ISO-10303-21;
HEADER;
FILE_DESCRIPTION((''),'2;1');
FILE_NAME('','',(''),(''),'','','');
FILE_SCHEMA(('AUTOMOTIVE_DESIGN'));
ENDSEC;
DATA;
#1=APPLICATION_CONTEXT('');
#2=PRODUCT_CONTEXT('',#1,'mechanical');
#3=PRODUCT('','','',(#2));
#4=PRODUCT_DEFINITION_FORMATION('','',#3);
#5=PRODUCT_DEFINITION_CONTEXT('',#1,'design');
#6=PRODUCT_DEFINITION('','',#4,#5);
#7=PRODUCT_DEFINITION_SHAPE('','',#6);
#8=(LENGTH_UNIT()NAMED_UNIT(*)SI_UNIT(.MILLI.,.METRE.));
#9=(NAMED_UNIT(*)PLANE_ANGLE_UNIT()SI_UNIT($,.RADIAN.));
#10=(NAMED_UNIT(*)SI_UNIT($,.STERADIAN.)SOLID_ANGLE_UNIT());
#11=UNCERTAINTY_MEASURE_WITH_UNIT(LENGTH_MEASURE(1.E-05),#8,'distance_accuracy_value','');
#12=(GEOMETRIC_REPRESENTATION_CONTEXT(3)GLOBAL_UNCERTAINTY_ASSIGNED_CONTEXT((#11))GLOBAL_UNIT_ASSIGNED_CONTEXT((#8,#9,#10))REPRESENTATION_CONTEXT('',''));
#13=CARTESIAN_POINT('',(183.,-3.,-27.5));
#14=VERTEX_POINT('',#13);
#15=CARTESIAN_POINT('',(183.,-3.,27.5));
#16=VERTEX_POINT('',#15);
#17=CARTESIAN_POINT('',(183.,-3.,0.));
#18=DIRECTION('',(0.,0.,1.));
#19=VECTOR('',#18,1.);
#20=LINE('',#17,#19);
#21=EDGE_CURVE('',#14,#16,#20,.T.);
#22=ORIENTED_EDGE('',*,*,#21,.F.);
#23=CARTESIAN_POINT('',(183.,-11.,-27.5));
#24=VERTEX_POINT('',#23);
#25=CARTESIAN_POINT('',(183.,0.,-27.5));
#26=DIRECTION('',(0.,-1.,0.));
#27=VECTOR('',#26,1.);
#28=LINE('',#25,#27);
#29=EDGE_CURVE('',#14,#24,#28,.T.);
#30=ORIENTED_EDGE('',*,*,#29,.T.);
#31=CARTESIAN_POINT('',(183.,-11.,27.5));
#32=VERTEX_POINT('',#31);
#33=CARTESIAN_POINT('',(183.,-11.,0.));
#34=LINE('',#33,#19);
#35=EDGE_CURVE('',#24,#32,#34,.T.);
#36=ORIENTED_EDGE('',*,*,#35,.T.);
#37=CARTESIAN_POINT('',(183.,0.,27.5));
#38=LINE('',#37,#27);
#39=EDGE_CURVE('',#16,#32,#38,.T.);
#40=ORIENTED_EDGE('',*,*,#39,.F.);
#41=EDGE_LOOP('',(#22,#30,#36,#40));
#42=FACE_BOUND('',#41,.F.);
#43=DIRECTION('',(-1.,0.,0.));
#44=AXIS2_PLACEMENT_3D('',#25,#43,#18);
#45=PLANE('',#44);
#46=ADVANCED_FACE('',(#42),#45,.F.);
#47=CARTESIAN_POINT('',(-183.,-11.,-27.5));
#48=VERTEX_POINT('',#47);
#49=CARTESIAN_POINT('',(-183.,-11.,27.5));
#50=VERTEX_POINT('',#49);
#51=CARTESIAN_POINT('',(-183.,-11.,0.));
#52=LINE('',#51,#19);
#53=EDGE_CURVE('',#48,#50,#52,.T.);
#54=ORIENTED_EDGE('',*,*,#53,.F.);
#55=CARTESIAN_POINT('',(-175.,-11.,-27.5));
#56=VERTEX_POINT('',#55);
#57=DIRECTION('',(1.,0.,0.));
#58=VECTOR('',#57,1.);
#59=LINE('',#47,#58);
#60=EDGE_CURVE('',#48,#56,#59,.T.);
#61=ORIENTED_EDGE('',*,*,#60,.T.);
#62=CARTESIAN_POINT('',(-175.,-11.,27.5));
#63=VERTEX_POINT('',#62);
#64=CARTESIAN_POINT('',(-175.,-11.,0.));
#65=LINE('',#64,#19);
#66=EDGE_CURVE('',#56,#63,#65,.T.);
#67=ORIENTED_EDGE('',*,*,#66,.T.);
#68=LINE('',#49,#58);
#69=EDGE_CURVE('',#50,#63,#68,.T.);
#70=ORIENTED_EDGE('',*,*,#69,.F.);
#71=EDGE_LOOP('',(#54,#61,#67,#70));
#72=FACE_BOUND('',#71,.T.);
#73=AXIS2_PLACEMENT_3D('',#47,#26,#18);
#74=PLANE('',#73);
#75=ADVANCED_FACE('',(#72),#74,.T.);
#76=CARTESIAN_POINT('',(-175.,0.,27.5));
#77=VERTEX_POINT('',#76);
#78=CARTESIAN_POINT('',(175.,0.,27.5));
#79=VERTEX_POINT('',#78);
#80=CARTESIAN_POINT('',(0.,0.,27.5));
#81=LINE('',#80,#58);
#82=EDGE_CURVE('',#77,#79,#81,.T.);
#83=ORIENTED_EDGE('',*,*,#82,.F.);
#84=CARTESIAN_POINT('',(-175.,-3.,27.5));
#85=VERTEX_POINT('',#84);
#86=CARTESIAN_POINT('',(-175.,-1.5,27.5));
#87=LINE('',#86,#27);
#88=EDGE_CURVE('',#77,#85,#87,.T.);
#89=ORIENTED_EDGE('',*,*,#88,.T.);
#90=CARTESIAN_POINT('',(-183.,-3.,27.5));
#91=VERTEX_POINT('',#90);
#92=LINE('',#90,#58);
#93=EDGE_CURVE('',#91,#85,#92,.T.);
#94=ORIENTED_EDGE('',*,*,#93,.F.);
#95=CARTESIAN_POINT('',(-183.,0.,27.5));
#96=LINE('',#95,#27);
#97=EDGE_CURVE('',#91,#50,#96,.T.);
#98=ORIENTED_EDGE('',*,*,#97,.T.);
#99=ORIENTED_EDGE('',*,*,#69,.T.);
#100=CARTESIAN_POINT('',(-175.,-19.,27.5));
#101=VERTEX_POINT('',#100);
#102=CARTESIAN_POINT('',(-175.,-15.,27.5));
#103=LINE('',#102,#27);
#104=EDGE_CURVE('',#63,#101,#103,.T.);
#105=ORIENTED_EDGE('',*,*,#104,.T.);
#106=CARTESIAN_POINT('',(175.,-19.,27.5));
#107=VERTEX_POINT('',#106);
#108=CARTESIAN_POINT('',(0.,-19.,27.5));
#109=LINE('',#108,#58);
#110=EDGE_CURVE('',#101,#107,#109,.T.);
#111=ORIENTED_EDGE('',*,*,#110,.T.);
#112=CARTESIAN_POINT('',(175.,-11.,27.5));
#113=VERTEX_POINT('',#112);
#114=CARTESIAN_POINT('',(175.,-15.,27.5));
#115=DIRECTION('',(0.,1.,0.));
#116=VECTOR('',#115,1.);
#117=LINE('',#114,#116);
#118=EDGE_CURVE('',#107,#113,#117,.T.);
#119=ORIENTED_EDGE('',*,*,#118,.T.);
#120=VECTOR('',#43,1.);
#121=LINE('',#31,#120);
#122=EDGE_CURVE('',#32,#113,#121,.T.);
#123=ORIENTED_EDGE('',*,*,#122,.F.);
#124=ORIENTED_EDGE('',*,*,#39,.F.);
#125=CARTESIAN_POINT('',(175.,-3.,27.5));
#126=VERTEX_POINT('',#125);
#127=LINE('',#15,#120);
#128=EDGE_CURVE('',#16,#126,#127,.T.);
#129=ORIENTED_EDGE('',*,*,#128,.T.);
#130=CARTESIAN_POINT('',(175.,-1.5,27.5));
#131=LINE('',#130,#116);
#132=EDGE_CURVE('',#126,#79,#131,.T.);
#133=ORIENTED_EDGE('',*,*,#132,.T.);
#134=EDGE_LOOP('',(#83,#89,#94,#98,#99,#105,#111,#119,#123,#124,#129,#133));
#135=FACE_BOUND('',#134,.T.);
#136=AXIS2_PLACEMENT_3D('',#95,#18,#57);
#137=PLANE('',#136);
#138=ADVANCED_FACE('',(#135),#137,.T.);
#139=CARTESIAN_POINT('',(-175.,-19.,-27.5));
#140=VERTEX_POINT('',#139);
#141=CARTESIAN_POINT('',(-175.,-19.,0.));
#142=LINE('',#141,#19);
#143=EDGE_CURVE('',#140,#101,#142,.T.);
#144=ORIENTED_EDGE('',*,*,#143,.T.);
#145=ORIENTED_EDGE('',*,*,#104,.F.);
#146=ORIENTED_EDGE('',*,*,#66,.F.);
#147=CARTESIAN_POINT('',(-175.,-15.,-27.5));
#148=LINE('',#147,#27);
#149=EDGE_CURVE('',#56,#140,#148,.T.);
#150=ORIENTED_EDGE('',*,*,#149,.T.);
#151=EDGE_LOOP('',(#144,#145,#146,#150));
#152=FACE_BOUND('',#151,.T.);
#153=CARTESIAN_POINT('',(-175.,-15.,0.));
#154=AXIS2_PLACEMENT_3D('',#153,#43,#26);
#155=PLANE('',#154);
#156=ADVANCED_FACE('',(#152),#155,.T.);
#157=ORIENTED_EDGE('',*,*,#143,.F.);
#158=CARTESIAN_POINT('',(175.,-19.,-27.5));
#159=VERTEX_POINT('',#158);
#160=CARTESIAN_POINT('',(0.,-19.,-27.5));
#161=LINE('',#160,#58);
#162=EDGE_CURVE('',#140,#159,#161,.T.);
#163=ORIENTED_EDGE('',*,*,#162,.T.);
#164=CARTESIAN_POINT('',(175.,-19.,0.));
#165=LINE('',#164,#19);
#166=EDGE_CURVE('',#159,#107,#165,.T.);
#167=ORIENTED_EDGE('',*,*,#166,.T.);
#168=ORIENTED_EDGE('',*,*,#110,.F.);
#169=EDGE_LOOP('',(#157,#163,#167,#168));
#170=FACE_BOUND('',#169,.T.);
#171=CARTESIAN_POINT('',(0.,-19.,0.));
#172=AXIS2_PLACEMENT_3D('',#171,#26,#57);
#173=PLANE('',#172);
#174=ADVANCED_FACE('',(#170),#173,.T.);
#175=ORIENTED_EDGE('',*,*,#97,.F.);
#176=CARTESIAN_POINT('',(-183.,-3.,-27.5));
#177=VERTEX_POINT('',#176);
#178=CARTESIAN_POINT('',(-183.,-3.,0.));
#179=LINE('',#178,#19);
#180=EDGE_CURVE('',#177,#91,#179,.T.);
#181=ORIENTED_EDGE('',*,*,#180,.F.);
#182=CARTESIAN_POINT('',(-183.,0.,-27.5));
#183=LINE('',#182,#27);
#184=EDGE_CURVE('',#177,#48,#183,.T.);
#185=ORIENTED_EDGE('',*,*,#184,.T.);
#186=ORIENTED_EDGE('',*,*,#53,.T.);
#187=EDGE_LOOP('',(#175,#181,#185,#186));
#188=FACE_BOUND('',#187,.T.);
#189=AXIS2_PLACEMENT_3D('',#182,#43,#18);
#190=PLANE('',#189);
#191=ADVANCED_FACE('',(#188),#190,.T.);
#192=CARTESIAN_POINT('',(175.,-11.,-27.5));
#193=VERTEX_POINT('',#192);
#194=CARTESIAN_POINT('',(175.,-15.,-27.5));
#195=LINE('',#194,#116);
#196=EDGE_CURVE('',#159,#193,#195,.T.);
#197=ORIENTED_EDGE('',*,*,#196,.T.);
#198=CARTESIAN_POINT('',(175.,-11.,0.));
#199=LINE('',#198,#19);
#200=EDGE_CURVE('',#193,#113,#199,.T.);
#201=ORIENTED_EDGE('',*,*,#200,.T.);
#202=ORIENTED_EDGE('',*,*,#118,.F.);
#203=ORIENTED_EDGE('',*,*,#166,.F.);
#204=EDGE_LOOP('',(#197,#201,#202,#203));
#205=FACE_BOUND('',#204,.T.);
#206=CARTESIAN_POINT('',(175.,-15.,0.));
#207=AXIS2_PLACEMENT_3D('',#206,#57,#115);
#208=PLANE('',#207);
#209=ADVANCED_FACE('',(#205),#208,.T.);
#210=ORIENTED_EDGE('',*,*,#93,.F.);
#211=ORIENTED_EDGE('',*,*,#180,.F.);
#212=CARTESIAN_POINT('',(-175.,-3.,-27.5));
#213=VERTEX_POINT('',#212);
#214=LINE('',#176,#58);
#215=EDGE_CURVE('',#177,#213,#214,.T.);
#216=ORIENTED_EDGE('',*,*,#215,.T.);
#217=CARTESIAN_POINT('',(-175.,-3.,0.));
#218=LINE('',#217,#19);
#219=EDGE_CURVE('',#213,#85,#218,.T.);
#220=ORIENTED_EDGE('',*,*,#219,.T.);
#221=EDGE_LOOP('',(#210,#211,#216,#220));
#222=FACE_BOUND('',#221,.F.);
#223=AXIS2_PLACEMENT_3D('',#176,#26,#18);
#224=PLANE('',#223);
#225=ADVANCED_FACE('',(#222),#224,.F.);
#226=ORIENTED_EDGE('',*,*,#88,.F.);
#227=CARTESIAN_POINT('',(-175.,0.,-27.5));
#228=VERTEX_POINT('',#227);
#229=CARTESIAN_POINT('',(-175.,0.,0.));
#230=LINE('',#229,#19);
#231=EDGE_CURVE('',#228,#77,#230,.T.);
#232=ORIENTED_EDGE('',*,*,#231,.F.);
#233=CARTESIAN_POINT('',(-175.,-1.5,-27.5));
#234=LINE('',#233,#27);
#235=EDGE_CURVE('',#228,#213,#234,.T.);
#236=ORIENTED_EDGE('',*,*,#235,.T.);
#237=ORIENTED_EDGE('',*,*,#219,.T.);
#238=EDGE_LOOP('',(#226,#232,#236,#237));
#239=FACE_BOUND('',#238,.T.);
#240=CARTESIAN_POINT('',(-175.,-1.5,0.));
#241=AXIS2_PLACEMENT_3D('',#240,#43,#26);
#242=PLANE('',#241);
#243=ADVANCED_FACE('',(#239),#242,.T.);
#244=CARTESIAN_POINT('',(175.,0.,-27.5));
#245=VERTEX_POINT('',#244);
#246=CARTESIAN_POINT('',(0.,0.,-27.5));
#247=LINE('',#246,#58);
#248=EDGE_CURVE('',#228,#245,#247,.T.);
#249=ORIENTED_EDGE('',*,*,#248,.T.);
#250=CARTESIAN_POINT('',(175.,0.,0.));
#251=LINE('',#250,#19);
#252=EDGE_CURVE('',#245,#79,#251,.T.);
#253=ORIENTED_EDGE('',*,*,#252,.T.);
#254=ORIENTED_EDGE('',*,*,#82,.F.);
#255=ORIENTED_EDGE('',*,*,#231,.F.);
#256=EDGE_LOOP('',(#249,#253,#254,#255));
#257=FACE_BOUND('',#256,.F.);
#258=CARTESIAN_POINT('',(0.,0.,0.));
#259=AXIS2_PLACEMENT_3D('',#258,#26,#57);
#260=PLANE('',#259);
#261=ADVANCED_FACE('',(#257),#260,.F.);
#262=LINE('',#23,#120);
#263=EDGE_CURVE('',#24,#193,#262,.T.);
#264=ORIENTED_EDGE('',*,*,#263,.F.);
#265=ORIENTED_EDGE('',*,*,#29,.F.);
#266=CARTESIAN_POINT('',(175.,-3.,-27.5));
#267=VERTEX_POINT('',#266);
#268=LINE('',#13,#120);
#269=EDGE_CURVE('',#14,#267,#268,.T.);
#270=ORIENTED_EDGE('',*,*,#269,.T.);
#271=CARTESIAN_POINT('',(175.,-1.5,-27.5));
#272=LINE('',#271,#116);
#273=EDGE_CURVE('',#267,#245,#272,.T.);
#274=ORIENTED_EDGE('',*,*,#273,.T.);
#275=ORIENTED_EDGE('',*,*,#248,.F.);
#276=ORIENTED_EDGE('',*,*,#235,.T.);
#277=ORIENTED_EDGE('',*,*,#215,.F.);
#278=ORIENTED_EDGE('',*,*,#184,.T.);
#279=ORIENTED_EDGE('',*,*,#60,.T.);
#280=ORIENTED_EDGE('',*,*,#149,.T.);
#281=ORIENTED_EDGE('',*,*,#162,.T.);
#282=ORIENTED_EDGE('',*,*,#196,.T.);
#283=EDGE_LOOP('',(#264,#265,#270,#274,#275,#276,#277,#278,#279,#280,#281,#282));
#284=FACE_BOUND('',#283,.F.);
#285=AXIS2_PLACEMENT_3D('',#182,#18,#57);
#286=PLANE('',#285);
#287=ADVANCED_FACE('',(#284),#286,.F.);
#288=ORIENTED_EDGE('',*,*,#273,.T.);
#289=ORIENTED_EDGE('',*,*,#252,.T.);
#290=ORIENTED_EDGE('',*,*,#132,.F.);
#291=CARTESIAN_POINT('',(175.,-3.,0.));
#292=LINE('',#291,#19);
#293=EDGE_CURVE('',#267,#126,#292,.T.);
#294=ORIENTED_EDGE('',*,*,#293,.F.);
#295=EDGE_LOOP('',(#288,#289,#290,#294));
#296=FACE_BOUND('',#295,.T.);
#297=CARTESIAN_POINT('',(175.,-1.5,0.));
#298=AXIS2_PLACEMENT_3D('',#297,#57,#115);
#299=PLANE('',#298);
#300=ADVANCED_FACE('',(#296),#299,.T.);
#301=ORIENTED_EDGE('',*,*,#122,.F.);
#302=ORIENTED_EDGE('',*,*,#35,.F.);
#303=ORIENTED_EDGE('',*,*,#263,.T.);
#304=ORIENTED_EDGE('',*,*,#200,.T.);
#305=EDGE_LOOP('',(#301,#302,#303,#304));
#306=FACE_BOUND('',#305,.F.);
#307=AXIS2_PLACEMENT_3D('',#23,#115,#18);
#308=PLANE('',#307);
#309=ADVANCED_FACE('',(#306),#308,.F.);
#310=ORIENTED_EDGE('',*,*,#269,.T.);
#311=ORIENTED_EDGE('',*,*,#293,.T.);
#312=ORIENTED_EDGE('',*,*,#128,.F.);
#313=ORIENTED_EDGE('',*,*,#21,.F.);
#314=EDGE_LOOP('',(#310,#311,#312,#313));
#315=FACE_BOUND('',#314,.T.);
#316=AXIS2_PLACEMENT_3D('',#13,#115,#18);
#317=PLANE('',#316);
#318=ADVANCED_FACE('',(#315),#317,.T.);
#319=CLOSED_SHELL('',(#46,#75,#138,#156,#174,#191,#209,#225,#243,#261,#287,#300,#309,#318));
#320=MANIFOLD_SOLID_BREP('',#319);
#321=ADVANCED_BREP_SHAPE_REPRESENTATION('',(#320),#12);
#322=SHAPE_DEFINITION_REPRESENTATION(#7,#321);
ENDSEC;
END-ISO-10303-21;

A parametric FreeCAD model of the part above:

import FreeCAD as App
import Part
import Sketcher

V = App.Vector
Q = App.Units.Quantity


def add_polygon(sketch, points):
    """Adds a closed chain of lines whose ends are joined by coincident constraints."""
    first, n = sketch.GeometryCount, len(points)
    for a, b in zip(points, points[1:] + points[:1]):
        sketch.addGeometry(Part.LineSegment(App.Vector(*a, 0), App.Vector(*b, 0)), False)
    for i in range(n):
        sketch.addConstraint(Sketcher.Constraint("Coincident", first + i, 2, first + (i + 1) % n, 1))

doc = App.newDocument("Part")
body = doc.addObject("PartDesign::Body", "Body")

sketch1 = body.newObject("Sketcher::SketchObject", "Sketch")
sketch1.AttachmentSupport = (doc.getObject("XZ_Plane"), [""])
sketch1.MapMode = "FlatFace"
add_polygon(sketch1, [(-183, 28), (-183, -28), (183, -28), (183, 28)])
sketch1.addConstraint([
    Sketcher.Constraint("Vertical", 0),
    Sketcher.Constraint("Horizontal", 1),
    Sketcher.Constraint("Vertical", 2),
    Sketcher.Constraint("Horizontal", 3),
    Sketcher.Constraint("Symmetric", 0, 2, 2, 2, -1, 1),
    Sketcher.Constraint("DistanceX", 1, 1, 1, 2, Q("366 mm")),
    Sketcher.Constraint("DistanceY", 0, 2, 0, 1, Q("55 mm")),
])
pad1 = body.newObject("PartDesign::Pad", "Pad")
pad1.Profile = sketch1
pad1.Length = 19

sketch2 = body.newObject("Sketcher::SketchObject", "Sketch001")
sketch2.AttachmentSupport = (doc.getObject("YZ_Plane"), [""])
sketch2.MapMode = "FlatFace"
sketch2.AttachmentOffset = App.Placement(V(0, 0, 183), App.Rotation())
add_polygon(sketch2, [(-19, 27.5), (-19, -27.5), (-11, -27.5), (-11, 27.5)])
add_polygon(sketch2, [(-3, 27.5), (-3, -27.5), (0, -27.5), (0, 27.5)])
sketch2.addConstraint([
    Sketcher.Constraint("Vertical", 0),
    Sketcher.Constraint("Horizontal", 1),
    Sketcher.Constraint("Vertical", 2),
    Sketcher.Constraint("Horizontal", 3),
    Sketcher.Constraint("Vertical", 4),
    Sketcher.Constraint("Horizontal", 5),
    Sketcher.Constraint("Vertical", 6),
    Sketcher.Constraint("Horizontal", 7),
    Sketcher.Constraint("Symmetric", 5, 2, 6, 2, -1, 1),
    Sketcher.Constraint("Horizontal", 1, 2, 4, 2),
    Sketcher.Constraint("Horizontal", 3, 2, 6, 2),
    Sketcher.Constraint("DistanceX", 1, 1, 1, 2, Q("8 mm")),
    Sketcher.Constraint("DistanceX", 5, 1, 5, 2, Q("3 mm")),
    Sketcher.Constraint("DistanceY", 0, 2, 0, 1, Q("55 mm")),
    Sketcher.Constraint("DistanceX", 0, 2, -1, 1, Q("19 mm")),
])
pocket1 = body.newObject("PartDesign::Pocket", "Pocket")
pocket1.Profile = sketch2
pocket1.Length = 8

sketch3 = body.newObject("Sketcher::SketchObject", "Sketch002")
sketch3.AttachmentSupport = (doc.getObject("YZ_Plane"), [""])
sketch3.MapMode = "FlatFace"
sketch3.AttachmentOffset = App.Placement(V(0, 0, -183), App.Rotation())
add_polygon(sketch3, [(-11, 27.5), (-11, -27.5), (-19, -27.5), (-19, 27.5)])
add_polygon(sketch3, [(0, 27.5), (0, -27.5), (-3, -27.5), (-3, 27.5)])
sketch3.addConstraint([
    Sketcher.Constraint("Vertical", 0),
    Sketcher.Constraint("Horizontal", 1),
    Sketcher.Constraint("Vertical", 2),
    Sketcher.Constraint("Horizontal", 3),
    Sketcher.Constraint("Vertical", 4),
    Sketcher.Constraint("Horizontal", 5),
    Sketcher.Constraint("Vertical", 6),
    Sketcher.Constraint("Horizontal", 7),
    Sketcher.Constraint("Symmetric", 4, 2, 7, 2, -1, 1),
    Sketcher.Constraint("Horizontal", 1, 2, 4, 2),
    Sketcher.Constraint("Horizontal", 3, 2, 6, 2),
    Sketcher.Constraint("DistanceX", 1, 2, 1, 1, Q("8 mm")),
    Sketcher.Constraint("DistanceX", 5, 2, 5, 1, Q("3 mm")),
    Sketcher.Constraint("DistanceY", 0, 2, 0, 1, Q("55 mm")),
    Sketcher.Constraint("DistanceX", 0, 2, -1, 1, Q("11 mm")),
])
pocket2 = body.newObject("PartDesign::Pocket", "Pocket001")
pocket2.Profile = sketch3
pocket2.Length = 8
pocket2.Reversed = True

doc.recompute()
